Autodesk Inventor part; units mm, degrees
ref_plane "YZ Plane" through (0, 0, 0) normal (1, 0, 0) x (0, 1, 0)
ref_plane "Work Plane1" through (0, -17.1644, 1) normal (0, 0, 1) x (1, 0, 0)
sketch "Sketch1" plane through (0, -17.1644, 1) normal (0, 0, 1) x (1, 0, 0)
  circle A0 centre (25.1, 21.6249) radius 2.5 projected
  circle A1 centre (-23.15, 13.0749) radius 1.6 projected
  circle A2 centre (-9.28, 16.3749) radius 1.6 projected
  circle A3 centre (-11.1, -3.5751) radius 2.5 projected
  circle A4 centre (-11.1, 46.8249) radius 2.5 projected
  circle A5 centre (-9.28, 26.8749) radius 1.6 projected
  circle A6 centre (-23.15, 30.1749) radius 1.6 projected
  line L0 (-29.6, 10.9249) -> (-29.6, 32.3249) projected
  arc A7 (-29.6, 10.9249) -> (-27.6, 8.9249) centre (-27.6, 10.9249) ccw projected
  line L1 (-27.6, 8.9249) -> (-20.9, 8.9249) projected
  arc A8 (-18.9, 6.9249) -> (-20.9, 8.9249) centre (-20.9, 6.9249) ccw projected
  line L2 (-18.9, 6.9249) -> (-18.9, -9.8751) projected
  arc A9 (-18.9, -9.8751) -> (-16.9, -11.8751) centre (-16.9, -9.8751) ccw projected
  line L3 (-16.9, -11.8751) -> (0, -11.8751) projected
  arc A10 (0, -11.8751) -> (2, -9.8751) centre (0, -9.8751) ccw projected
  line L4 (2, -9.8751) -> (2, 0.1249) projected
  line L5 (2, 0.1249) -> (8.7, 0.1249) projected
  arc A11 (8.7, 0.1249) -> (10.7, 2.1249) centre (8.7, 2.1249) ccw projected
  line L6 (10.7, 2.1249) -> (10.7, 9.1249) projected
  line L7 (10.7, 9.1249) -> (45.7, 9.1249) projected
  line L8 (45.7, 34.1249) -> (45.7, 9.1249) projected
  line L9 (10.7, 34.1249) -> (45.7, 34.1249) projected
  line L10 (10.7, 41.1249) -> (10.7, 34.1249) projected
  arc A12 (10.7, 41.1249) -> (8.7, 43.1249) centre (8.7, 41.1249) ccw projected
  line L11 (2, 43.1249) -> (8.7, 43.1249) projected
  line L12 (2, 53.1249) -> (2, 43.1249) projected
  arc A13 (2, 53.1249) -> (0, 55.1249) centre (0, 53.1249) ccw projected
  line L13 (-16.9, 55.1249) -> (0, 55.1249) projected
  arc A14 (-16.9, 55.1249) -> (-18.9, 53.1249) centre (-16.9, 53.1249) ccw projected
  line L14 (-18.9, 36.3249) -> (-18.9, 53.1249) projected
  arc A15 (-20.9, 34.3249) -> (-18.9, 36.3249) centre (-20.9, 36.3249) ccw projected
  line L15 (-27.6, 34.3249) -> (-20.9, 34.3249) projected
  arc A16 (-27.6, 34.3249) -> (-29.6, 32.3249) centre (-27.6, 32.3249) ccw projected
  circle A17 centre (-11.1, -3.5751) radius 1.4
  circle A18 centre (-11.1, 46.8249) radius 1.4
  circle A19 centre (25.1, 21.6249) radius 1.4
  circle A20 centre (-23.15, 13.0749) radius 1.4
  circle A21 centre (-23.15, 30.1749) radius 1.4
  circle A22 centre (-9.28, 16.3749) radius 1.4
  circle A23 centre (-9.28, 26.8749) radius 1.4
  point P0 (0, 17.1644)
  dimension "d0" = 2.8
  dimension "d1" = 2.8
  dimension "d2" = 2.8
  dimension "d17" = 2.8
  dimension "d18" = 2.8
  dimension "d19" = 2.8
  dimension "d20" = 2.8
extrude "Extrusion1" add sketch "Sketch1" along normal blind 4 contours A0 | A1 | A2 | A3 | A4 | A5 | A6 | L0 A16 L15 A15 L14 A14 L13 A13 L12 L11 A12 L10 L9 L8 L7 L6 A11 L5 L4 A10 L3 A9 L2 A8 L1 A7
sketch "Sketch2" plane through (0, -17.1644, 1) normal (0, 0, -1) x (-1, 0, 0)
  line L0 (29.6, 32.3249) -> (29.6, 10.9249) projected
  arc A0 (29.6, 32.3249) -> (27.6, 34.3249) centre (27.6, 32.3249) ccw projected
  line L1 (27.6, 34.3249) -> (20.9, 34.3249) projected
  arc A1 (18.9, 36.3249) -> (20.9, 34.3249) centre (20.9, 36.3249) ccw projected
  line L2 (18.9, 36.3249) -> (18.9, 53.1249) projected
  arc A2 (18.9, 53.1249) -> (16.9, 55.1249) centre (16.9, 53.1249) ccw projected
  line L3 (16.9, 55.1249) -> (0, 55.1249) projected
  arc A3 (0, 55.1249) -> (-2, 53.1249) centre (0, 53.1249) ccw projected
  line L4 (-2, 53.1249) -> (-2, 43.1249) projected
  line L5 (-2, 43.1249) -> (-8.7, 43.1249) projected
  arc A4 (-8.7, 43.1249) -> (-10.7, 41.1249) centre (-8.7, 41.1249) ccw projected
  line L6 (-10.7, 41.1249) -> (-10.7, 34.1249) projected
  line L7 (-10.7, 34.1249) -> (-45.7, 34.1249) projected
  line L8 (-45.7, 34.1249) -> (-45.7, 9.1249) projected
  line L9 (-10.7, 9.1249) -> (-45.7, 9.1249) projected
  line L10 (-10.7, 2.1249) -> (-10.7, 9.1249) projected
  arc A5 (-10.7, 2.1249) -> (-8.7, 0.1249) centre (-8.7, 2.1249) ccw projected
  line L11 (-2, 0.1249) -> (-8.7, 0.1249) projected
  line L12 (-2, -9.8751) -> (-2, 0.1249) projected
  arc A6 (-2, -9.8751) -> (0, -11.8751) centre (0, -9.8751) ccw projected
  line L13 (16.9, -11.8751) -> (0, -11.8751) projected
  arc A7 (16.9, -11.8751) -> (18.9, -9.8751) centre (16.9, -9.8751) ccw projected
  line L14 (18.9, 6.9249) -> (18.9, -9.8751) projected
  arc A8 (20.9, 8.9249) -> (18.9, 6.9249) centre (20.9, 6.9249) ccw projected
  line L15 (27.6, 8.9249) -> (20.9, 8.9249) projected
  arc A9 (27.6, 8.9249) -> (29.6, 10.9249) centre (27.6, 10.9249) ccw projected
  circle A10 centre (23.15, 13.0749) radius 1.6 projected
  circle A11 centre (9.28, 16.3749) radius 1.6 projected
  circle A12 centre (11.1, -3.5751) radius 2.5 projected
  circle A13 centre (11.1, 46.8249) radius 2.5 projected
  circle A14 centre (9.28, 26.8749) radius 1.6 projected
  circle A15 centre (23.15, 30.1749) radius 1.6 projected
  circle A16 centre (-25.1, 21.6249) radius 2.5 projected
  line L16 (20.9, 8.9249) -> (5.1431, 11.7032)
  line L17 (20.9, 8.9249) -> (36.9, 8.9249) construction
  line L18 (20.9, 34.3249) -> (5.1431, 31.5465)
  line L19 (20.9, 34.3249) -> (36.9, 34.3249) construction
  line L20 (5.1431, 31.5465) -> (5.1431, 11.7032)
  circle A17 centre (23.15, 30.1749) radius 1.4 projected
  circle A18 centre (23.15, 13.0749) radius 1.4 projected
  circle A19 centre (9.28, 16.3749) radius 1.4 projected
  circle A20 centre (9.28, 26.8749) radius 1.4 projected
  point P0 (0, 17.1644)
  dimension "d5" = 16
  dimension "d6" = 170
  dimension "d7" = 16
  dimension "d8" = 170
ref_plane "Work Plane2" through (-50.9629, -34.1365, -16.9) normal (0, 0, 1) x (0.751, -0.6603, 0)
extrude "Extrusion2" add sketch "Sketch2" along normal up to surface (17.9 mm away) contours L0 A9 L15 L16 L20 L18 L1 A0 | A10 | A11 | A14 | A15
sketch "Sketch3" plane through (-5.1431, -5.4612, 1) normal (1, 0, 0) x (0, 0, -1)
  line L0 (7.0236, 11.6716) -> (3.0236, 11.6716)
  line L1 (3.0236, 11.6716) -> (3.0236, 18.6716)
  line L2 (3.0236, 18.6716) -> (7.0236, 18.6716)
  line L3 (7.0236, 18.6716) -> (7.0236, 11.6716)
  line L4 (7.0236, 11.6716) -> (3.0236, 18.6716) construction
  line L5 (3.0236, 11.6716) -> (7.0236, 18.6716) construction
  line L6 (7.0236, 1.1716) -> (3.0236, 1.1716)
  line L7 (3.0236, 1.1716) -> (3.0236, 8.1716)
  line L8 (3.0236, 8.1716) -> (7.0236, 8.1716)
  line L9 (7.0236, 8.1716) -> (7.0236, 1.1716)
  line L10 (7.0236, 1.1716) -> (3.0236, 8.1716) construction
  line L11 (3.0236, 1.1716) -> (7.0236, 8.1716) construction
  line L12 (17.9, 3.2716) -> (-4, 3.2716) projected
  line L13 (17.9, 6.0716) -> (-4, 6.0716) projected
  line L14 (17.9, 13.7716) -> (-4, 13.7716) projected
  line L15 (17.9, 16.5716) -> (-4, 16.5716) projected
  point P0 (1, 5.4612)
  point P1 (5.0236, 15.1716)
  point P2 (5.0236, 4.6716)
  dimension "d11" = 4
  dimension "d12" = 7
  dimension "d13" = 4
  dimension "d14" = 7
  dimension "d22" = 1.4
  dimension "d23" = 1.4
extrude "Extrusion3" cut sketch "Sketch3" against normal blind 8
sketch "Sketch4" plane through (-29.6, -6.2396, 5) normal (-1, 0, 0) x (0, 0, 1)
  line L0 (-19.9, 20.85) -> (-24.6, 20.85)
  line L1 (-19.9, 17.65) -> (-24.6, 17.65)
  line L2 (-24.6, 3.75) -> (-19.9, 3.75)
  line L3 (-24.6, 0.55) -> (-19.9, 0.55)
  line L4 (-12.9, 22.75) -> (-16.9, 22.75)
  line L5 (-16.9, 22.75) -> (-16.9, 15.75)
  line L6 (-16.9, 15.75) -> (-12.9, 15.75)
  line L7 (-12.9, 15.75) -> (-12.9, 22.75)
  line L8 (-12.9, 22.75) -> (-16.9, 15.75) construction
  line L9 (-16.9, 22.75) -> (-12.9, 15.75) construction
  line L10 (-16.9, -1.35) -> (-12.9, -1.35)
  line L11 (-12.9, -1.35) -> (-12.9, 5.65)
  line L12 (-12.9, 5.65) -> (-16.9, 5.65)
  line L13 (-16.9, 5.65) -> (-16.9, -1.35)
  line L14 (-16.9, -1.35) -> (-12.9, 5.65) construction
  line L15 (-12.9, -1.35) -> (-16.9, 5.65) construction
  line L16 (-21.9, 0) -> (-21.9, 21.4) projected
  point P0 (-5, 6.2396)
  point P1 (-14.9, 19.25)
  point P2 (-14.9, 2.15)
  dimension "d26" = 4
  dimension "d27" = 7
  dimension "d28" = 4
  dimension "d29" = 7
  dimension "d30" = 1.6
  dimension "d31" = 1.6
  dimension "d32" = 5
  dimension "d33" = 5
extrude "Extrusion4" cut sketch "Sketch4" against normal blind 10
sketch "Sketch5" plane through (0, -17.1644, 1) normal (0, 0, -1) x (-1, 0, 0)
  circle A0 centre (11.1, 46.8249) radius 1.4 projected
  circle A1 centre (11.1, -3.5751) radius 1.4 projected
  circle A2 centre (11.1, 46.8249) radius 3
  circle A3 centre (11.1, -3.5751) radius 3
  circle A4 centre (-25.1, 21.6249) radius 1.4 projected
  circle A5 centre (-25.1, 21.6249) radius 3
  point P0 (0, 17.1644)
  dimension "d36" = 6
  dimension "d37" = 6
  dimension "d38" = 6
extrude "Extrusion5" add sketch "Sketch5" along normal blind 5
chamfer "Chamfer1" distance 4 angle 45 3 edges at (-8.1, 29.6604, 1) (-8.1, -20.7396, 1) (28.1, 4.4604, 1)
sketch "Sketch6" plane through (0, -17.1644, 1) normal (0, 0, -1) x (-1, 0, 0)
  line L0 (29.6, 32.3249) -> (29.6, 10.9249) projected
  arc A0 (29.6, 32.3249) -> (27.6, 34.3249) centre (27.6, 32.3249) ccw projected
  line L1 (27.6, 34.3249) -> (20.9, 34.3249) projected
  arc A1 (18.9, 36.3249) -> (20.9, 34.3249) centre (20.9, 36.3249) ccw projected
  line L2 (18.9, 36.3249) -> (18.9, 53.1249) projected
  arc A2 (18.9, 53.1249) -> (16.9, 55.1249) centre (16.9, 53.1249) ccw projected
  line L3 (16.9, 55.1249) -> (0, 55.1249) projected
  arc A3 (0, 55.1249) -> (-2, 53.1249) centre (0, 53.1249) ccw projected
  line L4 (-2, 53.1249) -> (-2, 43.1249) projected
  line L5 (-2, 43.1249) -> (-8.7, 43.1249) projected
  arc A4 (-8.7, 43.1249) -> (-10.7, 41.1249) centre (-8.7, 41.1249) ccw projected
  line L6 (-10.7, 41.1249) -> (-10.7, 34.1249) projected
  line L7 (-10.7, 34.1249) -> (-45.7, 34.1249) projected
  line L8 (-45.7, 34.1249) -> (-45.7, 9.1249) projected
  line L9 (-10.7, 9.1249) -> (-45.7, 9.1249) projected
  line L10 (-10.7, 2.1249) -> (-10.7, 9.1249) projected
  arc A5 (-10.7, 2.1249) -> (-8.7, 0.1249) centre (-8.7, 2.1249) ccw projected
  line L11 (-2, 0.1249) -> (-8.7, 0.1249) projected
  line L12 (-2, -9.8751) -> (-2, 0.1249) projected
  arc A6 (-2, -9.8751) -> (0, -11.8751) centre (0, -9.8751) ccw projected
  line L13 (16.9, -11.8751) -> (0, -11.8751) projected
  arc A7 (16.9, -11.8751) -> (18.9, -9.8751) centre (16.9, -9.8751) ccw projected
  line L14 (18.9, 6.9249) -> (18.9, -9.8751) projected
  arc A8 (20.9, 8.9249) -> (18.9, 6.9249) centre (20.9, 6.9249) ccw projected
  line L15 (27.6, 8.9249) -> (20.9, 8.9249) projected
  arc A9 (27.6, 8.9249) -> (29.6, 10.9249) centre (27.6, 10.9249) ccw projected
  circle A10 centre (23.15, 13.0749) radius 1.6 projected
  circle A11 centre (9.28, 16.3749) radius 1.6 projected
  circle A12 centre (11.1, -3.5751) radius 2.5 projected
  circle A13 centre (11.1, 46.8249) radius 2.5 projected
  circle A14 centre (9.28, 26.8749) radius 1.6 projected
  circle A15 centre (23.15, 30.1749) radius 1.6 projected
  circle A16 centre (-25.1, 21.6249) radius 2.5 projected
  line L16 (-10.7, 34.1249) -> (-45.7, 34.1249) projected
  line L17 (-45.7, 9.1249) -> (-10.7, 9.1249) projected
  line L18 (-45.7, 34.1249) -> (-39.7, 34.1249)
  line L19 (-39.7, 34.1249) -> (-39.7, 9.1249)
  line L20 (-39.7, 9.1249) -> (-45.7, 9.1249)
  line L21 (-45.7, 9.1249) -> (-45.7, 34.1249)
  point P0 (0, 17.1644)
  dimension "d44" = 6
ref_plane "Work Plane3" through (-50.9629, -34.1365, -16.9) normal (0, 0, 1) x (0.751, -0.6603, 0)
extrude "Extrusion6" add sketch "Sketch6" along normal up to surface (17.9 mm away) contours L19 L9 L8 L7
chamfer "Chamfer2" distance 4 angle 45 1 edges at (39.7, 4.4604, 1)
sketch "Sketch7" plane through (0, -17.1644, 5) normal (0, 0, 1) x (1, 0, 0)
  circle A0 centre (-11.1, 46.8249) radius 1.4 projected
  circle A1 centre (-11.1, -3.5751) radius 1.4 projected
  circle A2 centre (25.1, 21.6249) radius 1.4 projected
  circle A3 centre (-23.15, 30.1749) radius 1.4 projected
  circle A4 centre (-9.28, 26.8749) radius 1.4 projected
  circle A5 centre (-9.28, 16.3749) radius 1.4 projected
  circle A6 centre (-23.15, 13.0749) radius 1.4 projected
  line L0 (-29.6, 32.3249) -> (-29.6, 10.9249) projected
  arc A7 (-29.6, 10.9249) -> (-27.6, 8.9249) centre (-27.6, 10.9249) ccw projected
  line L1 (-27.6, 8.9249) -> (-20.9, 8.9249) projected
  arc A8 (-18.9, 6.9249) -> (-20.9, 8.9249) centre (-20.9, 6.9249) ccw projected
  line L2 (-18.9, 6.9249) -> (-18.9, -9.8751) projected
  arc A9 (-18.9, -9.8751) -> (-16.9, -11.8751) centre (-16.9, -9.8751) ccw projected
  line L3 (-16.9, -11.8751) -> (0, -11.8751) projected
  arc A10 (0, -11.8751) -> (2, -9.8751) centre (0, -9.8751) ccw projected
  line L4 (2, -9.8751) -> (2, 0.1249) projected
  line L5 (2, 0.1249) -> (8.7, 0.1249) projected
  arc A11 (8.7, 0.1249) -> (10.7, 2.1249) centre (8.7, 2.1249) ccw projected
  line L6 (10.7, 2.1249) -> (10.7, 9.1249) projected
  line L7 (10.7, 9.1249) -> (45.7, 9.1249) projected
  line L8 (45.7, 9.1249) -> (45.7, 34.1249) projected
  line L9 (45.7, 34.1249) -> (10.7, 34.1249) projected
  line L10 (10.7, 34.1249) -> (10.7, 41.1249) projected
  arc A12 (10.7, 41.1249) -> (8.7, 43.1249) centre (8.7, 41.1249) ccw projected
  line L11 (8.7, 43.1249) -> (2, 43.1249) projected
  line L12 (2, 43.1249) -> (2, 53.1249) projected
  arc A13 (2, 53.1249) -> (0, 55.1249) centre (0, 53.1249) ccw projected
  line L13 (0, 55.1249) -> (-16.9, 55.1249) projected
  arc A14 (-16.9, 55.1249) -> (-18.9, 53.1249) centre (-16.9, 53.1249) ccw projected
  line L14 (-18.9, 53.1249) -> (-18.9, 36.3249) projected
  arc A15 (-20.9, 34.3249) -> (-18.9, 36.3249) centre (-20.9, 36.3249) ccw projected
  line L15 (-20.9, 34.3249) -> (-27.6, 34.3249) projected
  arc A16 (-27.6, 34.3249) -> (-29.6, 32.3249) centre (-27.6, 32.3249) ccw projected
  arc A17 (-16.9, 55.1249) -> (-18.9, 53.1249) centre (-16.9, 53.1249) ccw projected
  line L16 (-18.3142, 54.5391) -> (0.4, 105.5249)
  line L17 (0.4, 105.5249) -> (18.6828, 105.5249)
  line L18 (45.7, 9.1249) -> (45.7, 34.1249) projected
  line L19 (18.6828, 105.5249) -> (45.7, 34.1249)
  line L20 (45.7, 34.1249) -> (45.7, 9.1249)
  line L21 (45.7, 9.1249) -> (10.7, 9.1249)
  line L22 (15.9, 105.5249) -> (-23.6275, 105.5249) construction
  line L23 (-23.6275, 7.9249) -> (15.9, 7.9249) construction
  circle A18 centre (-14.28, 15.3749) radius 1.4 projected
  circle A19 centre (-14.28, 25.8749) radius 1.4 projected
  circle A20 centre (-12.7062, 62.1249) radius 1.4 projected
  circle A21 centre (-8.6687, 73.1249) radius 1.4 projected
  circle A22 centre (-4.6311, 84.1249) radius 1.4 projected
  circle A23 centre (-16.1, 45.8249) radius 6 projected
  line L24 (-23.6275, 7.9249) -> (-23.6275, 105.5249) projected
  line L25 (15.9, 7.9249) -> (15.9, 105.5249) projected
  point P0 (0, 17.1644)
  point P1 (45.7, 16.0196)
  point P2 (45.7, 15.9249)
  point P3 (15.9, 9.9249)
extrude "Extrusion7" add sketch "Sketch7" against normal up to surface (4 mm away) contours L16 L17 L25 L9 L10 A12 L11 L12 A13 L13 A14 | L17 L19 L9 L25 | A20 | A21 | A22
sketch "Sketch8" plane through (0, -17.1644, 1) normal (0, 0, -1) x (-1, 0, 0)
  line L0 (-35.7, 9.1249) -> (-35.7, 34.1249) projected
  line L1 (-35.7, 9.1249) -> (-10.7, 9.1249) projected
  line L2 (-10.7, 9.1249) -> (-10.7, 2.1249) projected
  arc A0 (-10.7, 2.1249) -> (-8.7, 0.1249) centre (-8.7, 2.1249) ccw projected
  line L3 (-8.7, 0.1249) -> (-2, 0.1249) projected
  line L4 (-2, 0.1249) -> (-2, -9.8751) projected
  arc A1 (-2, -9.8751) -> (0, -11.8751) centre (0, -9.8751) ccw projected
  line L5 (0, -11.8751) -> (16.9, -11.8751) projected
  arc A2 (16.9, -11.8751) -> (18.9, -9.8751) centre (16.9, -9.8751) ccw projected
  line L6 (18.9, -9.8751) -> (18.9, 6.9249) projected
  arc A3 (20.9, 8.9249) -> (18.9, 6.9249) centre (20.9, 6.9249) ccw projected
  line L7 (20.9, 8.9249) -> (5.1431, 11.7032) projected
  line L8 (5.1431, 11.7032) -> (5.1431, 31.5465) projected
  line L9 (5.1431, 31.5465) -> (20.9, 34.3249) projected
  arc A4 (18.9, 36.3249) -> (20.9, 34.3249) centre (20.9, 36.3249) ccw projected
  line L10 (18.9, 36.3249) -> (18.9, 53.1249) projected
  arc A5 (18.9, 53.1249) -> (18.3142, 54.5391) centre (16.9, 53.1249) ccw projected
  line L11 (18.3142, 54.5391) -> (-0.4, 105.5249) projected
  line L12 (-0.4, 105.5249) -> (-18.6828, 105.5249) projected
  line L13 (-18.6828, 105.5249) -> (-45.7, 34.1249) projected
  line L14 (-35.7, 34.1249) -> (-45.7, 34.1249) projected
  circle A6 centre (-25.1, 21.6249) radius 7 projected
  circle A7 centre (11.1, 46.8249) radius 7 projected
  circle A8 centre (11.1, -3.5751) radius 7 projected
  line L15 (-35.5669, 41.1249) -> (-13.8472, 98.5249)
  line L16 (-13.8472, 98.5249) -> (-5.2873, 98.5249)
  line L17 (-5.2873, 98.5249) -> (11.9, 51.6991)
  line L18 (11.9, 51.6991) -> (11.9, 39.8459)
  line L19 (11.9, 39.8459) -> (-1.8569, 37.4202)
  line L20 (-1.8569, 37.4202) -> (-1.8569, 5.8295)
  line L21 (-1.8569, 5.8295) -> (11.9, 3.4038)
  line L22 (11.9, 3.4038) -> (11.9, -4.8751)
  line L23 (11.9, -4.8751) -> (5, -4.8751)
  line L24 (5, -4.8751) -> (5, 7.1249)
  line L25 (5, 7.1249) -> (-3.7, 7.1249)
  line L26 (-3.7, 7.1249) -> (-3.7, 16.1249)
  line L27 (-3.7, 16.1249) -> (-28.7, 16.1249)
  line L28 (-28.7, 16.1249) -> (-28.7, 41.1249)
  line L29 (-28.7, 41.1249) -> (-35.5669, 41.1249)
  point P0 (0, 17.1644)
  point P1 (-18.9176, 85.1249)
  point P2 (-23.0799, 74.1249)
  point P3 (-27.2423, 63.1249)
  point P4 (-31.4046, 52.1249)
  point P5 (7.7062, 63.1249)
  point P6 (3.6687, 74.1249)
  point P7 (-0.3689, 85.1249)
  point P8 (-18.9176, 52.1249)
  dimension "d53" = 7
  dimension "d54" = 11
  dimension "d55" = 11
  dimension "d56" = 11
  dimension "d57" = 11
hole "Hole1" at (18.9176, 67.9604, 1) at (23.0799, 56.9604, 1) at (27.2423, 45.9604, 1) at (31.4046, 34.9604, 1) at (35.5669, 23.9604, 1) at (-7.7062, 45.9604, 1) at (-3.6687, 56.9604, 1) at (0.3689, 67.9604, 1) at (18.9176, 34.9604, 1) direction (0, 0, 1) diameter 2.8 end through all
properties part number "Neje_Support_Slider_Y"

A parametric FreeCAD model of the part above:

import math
import FreeCAD as App
import Part
import Sketcher
from FreeCAD import Vector
Q = App.Units.Quantity


def edges_at(feature, points):
    """Names of the edges that pass closest to the given points."""
    edges = feature.Shape.Edges
    near = lambda p: min(range(len(edges)), key=lambda i: edges[i].distToShape(Part.Vertex(*p))[0])
    return sorted({f"Edge{near(p) + 1}" for p in points})

doc = App.newDocument("Part")
body = doc.addObject("PartDesign::Body", "Body")

sketch1 = body.newObject("Sketcher::SketchObject", "Sketch")
sketch1.AttachmentSupport = (doc.getObject("XY_Plane"), [""])
sketch1.MapMode = "FlatFace"
sketch1.AttachmentOffset = App.Placement(Vector(0, 0, 1), App.Rotation())
sketch1.addGeometry(Part.LineSegment(Vector(-29.6, 15.1605, 0), Vector(-29.6, -6.2395, 0)), False)
sketch1.addGeometry(Part.ArcOfCircle(Part.Circle(Vector(-27.6, -6.2395, 0), Vector(0, 0, 1), 2), math.radians(180), math.radians(270)), False)
sketch1.addGeometry(Part.LineSegment(Vector(-27.6, -8.2395, 0), Vector(-20.9, -8.2395, 0)), False)
sketch1.addGeometry(Part.ArcOfCircle(Part.Circle(Vector(-20.9, -10.2395, 0), Vector(0, 0, 1), 2), math.radians(0), math.radians(90)), False)
sketch1.addGeometry(Part.LineSegment(Vector(-18.9, -10.2395, 0), Vector(-18.9, -27.0395, 0)), False)
sketch1.addGeometry(Part.ArcOfCircle(Part.Circle(Vector(-16.9, -27.0395, 0), Vector(0, 0, 1), 2), math.radians(180), math.radians(270)), False)
sketch1.addGeometry(Part.LineSegment(Vector(-16.9, -29.0395, 0), Vector(0, -29.0395, 0)), False)
sketch1.addGeometry(Part.ArcOfCircle(Part.Circle(Vector(0, -27.0395, 0), Vector(0, 0, 1), 2), math.radians(-90), math.radians(0)), False)
sketch1.addGeometry(Part.LineSegment(Vector(2, -27.0395, 0), Vector(2, -17.0395, 0)), False)
sketch1.addGeometry(Part.LineSegment(Vector(2, -17.0395, 0), Vector(8.7, -17.0395, 0)), False)
sketch1.addGeometry(Part.ArcOfCircle(Part.Circle(Vector(8.7, -15.0395, 0), Vector(0, 0, 1), 2), math.radians(-90), math.radians(0)), False)
sketch1.addGeometry(Part.LineSegment(Vector(10.7, -15.0395, 0), Vector(10.7, -8.0395, 0)), False)
sketch1.addGeometry(Part.LineSegment(Vector(10.7, -8.0395, 0), Vector(45.7, -8.0395, 0)), False)
sketch1.addGeometry(Part.LineSegment(Vector(45.7, -8.0395, 0), Vector(45.7, 16.9605, 0)), False)
sketch1.addGeometry(Part.LineSegment(Vector(45.7, 16.9605, 0), Vector(10.7, 16.9605, 0)), False)
sketch1.addGeometry(Part.LineSegment(Vector(10.7, 16.9605, 0), Vector(10.7, 23.9605, 0)), False)
sketch1.addGeometry(Part.ArcOfCircle(Part.Circle(Vector(8.7, 23.9605, 0), Vector(0, 0, 1), 2), math.radians(0), math.radians(90)), False)
sketch1.addGeometry(Part.LineSegment(Vector(8.7, 25.9605, 0), Vector(2, 25.9605, 0)), False)
sketch1.addGeometry(Part.LineSegment(Vector(2, 25.9605, 0), Vector(2, 35.9605, 0)), False)
sketch1.addGeometry(Part.ArcOfCircle(Part.Circle(Vector(0, 35.9605, 0), Vector(0, 0, 1), 2), math.radians(0), math.radians(90)), False)
sketch1.addGeometry(Part.LineSegment(Vector(0, 37.9605, 0), Vector(-16.9, 37.9605, 0)), False)
sketch1.addGeometry(Part.ArcOfCircle(Part.Circle(Vector(-16.9, 35.9605, 0), Vector(0, 0, 1), 2), math.radians(90), math.radians(180)), False)
sketch1.addGeometry(Part.LineSegment(Vector(-18.9, 35.9605, 0), Vector(-18.9, 19.1605, 0)), False)
sketch1.addGeometry(Part.ArcOfCircle(Part.Circle(Vector(-20.9, 19.1605, 0), Vector(0, 0, 1), 2), math.radians(-90), math.radians(0)), False)
sketch1.addGeometry(Part.LineSegment(Vector(-20.9, 17.1605, 0), Vector(-27.6, 17.1605, 0)), False)
sketch1.addGeometry(Part.ArcOfCircle(Part.Circle(Vector(-27.6, 15.1605, 0), Vector(0, 0, 1), 2), math.radians(90), math.radians(180)), False)
sketch1.addGeometry(Part.Circle(Vector(25.1, 4.4605, 0), Vector(0, 0, 1), 1.4), False)
sketch1.addGeometry(Part.Circle(Vector(-11.1, -20.7395, 0), Vector(0, 0, 1), 1.4), False)
sketch1.addGeometry(Part.Circle(Vector(-23.15, -4.0895, 0), Vector(0, 0, 1), 1.4), False)
sketch1.addGeometry(Part.Circle(Vector(-9.28, -0.7895, 0), Vector(0, 0, 1), 1.4), False)
sketch1.addGeometry(Part.Circle(Vector(-23.15, 13.0105, 0), Vector(0, 0, 1), 1.4), False)
sketch1.addGeometry(Part.Circle(Vector(-9.28, 9.7105, 0), Vector(0, 0, 1), 1.4), False)
sketch1.addGeometry(Part.Circle(Vector(-11.1, 29.6605, 0), Vector(0, 0, 1), 1.4), False)
sketch1.addConstraint(Sketcher.Constraint("Tangent", 0, 2, 1, 1))
sketch1.addConstraint(Sketcher.Constraint("Tangent", 1, 2, 2, 1))
sketch1.addConstraint(Sketcher.Constraint("Tangent", 2, 2, 3, 2))
sketch1.addConstraint(Sketcher.Constraint("Tangent", 3, 1, 4, 1))
sketch1.addConstraint(Sketcher.Constraint("Tangent", 4, 2, 5, 1))
sketch1.addConstraint(Sketcher.Constraint("Tangent", 5, 2, 6, 1))
sketch1.addConstraint(Sketcher.Constraint("Tangent", 6, 2, 7, 1))
sketch1.addConstraint(Sketcher.Constraint("Tangent", 7, 2, 8, 1))
sketch1.addConstraint(Sketcher.Constraint("Coincident", 8, 2, 9, 1))
sketch1.addConstraint(Sketcher.Constraint("Tangent", 9, 2, 10, 1))
sketch1.addConstraint(Sketcher.Constraint("Tangent", 10, 2, 11, 1))
sketch1.addConstraint(Sketcher.Constraint("Coincident", 11, 2, 12, 1))
sketch1.addConstraint(Sketcher.Constraint("Coincident", 12, 2, 13, 1))
sketch1.addConstraint(Sketcher.Constraint("Coincident", 13, 2, 14, 1))
sketch1.addConstraint(Sketcher.Constraint("Coincident", 14, 2, 15, 1))
sketch1.addConstraint(Sketcher.Constraint("Tangent", 15, 2, 16, 1))
sketch1.addConstraint(Sketcher.Constraint("Tangent", 16, 2, 17, 1))
sketch1.addConstraint(Sketcher.Constraint("Coincident", 17, 2, 18, 1))
sketch1.addConstraint(Sketcher.Constraint("Tangent", 18, 2, 19, 1))
sketch1.addConstraint(Sketcher.Constraint("Tangent", 19, 2, 20, 1))
sketch1.addConstraint(Sketcher.Constraint("Tangent", 20, 2, 21, 1))
sketch1.addConstraint(Sketcher.Constraint("Tangent", 21, 2, 22, 1))
sketch1.addConstraint(Sketcher.Constraint("Tangent", 22, 2, 23, 2))
sketch1.addConstraint(Sketcher.Constraint("Tangent", 23, 1, 24, 1))
sketch1.addConstraint(Sketcher.Constraint("Tangent", 24, 2, 25, 1))
sketch1.addConstraint(Sketcher.Constraint("Tangent", 25, 2, 0, 1))
sketch1.addConstraint(Sketcher.Constraint("Vertical", 0))
sketch1.addConstraint(Sketcher.Constraint("Horizontal", 2))
sketch1.addConstraint(Sketcher.Constraint("Vertical", 4))
sketch1.addConstraint(Sketcher.Constraint("Horizontal", 6))
sketch1.addConstraint(Sketcher.Constraint("Vertical", 8))
sketch1.addConstraint(Sketcher.Constraint("Horizontal", 9))
sketch1.addConstraint(Sketcher.Constraint("Vertical", 11))
sketch1.addConstraint(Sketcher.Constraint("Horizontal", 12))
sketch1.addConstraint(Sketcher.Constraint("Vertical", 13))
sketch1.addConstraint(Sketcher.Constraint("Horizontal", 14))
sketch1.addConstraint(Sketcher.Constraint("Vertical", 15))
sketch1.addConstraint(Sketcher.Constraint("Horizontal", 17))
sketch1.addConstraint(Sketcher.Constraint("Vertical", 18))
sketch1.addConstraint(Sketcher.Constraint("Horizontal", 20))
sketch1.addConstraint(Sketcher.Constraint("Vertical", 22))
sketch1.addConstraint(Sketcher.Constraint("Horizontal", 24))
sketch1.addConstraint(Sketcher.Constraint("Equal", 1, 3))
sketch1.addConstraint(Sketcher.Constraint("Equal", 3, 5))
sketch1.addConstraint(Sketcher.Constraint("Equal", 5, 7))
sketch1.addConstraint(Sketcher.Constraint("Equal", 7, 10))
sketch1.addConstraint(Sketcher.Constraint("Equal", 10, 16))
sketch1.addConstraint(Sketcher.Constraint("Equal", 16, 19))
sketch1.addConstraint(Sketcher.Constraint("Equal", 19, 21))
sketch1.addConstraint(Sketcher.Constraint("Equal", 21, 23))
sketch1.addConstraint(Sketcher.Constraint("Equal", 23, 25))
sketch1.addConstraint(Sketcher.Constraint("Equal", 26, 27))
sketch1.addConstraint(Sketcher.Constraint("Equal", 27, 28))
sketch1.addConstraint(Sketcher.Constraint("Equal", 28, 29))
sketch1.addConstraint(Sketcher.Constraint("Equal", 29, 30))
sketch1.addConstraint(Sketcher.Constraint("Equal", 30, 31))
sketch1.addConstraint(Sketcher.Constraint("Equal", 31, 32))
sketch1.addConstraint(Sketcher.Constraint("PointOnObject", 7, 3, -2))
sketch1.addConstraint(Sketcher.Constraint("PointOnObject", 19, 3, -2))
sketch1.addConstraint(Sketcher.Constraint("Vertical", 10, 3, 16, 3))
sketch1.addConstraint(Sketcher.Constraint("Vertical", 5, 3, 21, 3))
sketch1.addConstraint(Sketcher.Constraint("Vertical", 28, 3, 30, 3))
sketch1.addConstraint(Sketcher.Constraint("Vertical", 29, 3, 31, 3))
sketch1.addConstraint(Sketcher.Constraint("Vertical", 27, 3, 32, 3))
sketch1.addConstraint(Sketcher.Constraint("Equal", 2, 9))
sketch1.addConstraint(Sketcher.Constraint("Equal", 11, 15))
sketch1.addConstraint(Sketcher.Constraint("Equal", 8, 18))
sketch1.addConstraint(Sketcher.Constraint("Equal", 4, 22))
sketch1.addConstraint(Sketcher.Constraint("Diameter", 26, Q("2.8 mm")))
sketch1.addConstraint(Sketcher.Constraint("Radius", 1, Q("2 mm")))
sketch1.addConstraint(Sketcher.Constraint("DistanceX", 12, 1, 12, 2, Q("35 mm")))
sketch1.addConstraint(Sketcher.Constraint("DistanceY", 8, 1, 8, 2, Q("10 mm")))
sketch1.addConstraint(Sketcher.Constraint("DistanceY", 11, 1, 11, 2, Q("7 mm")))
sketch1.addConstraint(Sketcher.Constraint("DistanceY", 13, 1, 13, 2, Q("25 mm")))
sketch1.addConstraint(Sketcher.Constraint("DistanceX", 2, 1, 2, 2, Q("6.7 mm")))
sketch1.addConstraint(Sketcher.Constraint("DistanceX", 6, 1, 6, 2, Q("16.9 mm")))
sketch1.addConstraint(Sketcher.Constraint("DistanceY", 0, 2, 0, 1, Q("21.4 mm")))
sketch1.addConstraint(Sketcher.Constraint("DistanceX", 3, 3, 26, 3, Q("46 mm")))
sketch1.addConstraint(Sketcher.Constraint("DistanceX", 27, 3, -1, 1, Q("11.1 mm")))
sketch1.addConstraint(Sketcher.Constraint("DistanceY", 10, 3, 26, 3, Q("19.5 mm")))
sketch1.addConstraint(Sketcher.Constraint("DistanceY", 5, 3, 27, 3, Q("6.3 mm")))
sketch1.addConstraint(Sketcher.Constraint("DistanceY", 28, 3, 29, 3, Q("3.3 mm")))
sketch1.addConstraint(Sketcher.Constraint("DistanceY", 28, 3, 30, 3, Q("17.1 mm")))
sketch1.addConstraint(Sketcher.Constraint("DistanceY", 29, 3, 31, 3, Q("10.5 mm")))
sketch1.addConstraint(Sketcher.Constraint("DistanceY", 32, 3, 21, 3, Q("6.3 mm")))
sketch1.addConstraint(Sketcher.Constraint("DistanceX", 28, 3, -1, 1, Q("23.15 mm")))
sketch1.addConstraint(Sketcher.Constraint("DistanceX", 29, 3, -1, 1, Q("9.28 mm")))
sketch1.addConstraint(Sketcher.Constraint("DistanceY", 1, 3, 28, 3, Q("2.15 mm")))
sketch1.addConstraint(Sketcher.Constraint("DistanceY", 1, 3, -1, 1, Q("6.2395 mm")))
pad1 = body.newObject("PartDesign::Pad", "Pad")
pad1.Profile = sketch1
pad1.Length = 4

sketch2 = body.newObject("Sketcher::SketchObject", "Sketch001")
sketch2.AttachmentSupport = (doc.getObject("XY_Plane"), [""])
sketch2.MapMode = "FlatFace"
sketch2.AttachmentOffset = App.Placement(Vector(0, 0, 1), App.Rotation())
sketch2.addGeometry(Part.LineSegment(Vector(-29.6, -6.2395, 0), Vector(-29.6, 15.1605, 0)), False)
sketch2.addGeometry(Part.ArcOfCircle(Part.Circle(Vector(-27.6, 15.1605, 0), Vector(0, 0, 1), 2), math.radians(90), math.radians(180)), False)
sketch2.addGeometry(Part.LineSegment(Vector(-27.6, 17.1605, 0), Vector(-20.9, 17.1605, 0)), False)
sketch2.addGeometry(Part.LineSegment(Vector(-20.9, 17.1605, 0), Vector(-5.1431, 14.3821, 0)), False)
sketch2.addGeometry(Part.LineSegment(Vector(-5.1431, 14.3821, 0), Vector(-5.1431, -5.4612, 0)), False)
sketch2.addGeometry(Part.LineSegment(Vector(-5.1431, -5.4612, 0), Vector(-20.9, -8.2395, 0)), False)
sketch2.addGeometry(Part.LineSegment(Vector(-20.9, -8.2395, 0), Vector(-27.6, -8.2395, 0)), False)
sketch2.addGeometry(Part.ArcOfCircle(Part.Circle(Vector(-27.6, -6.2395, 0), Vector(0, 0, 1), 2), math.radians(180), math.radians(270)), False)
sketch2.addGeometry(Part.Circle(Vector(-9.28, -0.7895, 0), Vector(0, 0, 1), 1.4), False)
sketch2.addGeometry(Part.Circle(Vector(-23.15, -4.0895, 0), Vector(0, 0, 1), 1.4), False)
sketch2.addGeometry(Part.Circle(Vector(-9.28, 9.7105, 0), Vector(0, 0, 1), 1.4), False)
sketch2.addGeometry(Part.Circle(Vector(-23.15, 13.0105, 0), Vector(0, 0, 1), 1.4), False)
sketch2.addConstraint(Sketcher.Constraint("Tangent", 0, 2, 1, 2))
sketch2.addConstraint(Sketcher.Constraint("Tangent", 1, 1, 2, 1))
sketch2.addConstraint(Sketcher.Constraint("Coincident", 2, 2, 3, 1))
sketch2.addConstraint(Sketcher.Constraint("Coincident", 3, 2, 4, 1))
sketch2.addConstraint(Sketcher.Constraint("Coincident", 4, 2, 5, 1))
sketch2.addConstraint(Sketcher.Constraint("Coincident", 5, 2, 6, 1))
sketch2.addConstraint(Sketcher.Constraint("Tangent", 6, 2, 7, 2))
sketch2.addConstraint(Sketcher.Constraint("Tangent", 7, 1, 0, 1))
sketch2.addConstraint(Sketcher.Constraint("Vertical", 0))
sketch2.addConstraint(Sketcher.Constraint("Horizontal", 2))
sketch2.addConstraint(Sketcher.Constraint("Vertical", 4))
sketch2.addConstraint(Sketcher.Constraint("Horizontal", 6))
sketch2.addConstraint(Sketcher.Constraint("Equal", 1, 7))
sketch2.addConstraint(Sketcher.Constraint("Equal", 8, 9))
sketch2.addConstraint(Sketcher.Constraint("Equal", 9, 10))
sketch2.addConstraint(Sketcher.Constraint("Equal", 10, 11))
sketch2.addConstraint(Sketcher.Constraint("Vertical", 8, 3, 10, 3))
sketch2.addConstraint(Sketcher.Constraint("Vertical", 9, 3, 11, 3))
sketch2.addConstraint(Sketcher.Constraint("Vertical", 2, 2, 5, 2))
sketch2.addConstraint(Sketcher.Constraint("Equal", 3, 5))
sketch2.addConstraint(Sketcher.Constraint("Angle", 5, Q("-170.0002 deg")))
sketch2.addConstraint(Sketcher.Constraint("Distance", 3, Q("16 mm")))
sketch2.addConstraint(Sketcher.Constraint("Radius", 1, Q("2 mm")))
sketch2.addConstraint(Sketcher.Constraint("Diameter", 8, Q("2.8 mm")))
sketch2.addConstraint(Sketcher.Constraint("DistanceX", 2, 1, 2, 2, Q("6.7 mm")))
sketch2.addConstraint(Sketcher.Constraint("DistanceY", 0, 1, 0, 2, Q("21.4 mm")))
sketch2.addConstraint(Sketcher.Constraint("DistanceX", 1, 3, -1, 1, Q("27.6 mm")))
sketch2.addConstraint(Sketcher.Constraint("DistanceY", 9, 3, 8, 3, Q("3.3 mm")))
sketch2.addConstraint(Sketcher.Constraint("DistanceY", 8, 3, 10, 3, Q("10.5 mm")))
sketch2.addConstraint(Sketcher.Constraint("DistanceY", 10, 3, 11, 3, Q("3.3 mm")))
sketch2.addConstraint(Sketcher.Constraint("DistanceX", 8, 3, -1, 1, Q("9.28 mm")))
sketch2.addConstraint(Sketcher.Constraint("DistanceX", 9, 3, -1, 1, Q("23.15 mm")))
sketch2.addConstraint(Sketcher.Constraint("DistanceY", 7, 3, 8, 3, Q("5.45 mm")))
sketch2.addConstraint(Sketcher.Constraint("DistanceY", -1, 1, 3, 2, Q("14.382 mm")))
pad2 = body.newObject("PartDesign::Pad", "Pad001")
pad2.Profile = sketch2
pad2.Length = 17.9
pad2.Reversed = True

sketch3 = body.newObject("Sketcher::SketchObject", "Sketch002")
sketch3.AttachmentSupport = (doc.getObject("YZ_Plane"), [""])
sketch3.MapMode = "FlatFace"
sketch3.AttachmentOffset = App.Placement(Vector(0, 0, -5.1431), App.Rotation())
sketch3.addGeometry(Part.LineSegment(Vector(6.2104, -2.0236, 0), Vector(6.2104, -6.0236, 0)), False)
sketch3.addGeometry(Part.LineSegment(Vector(6.2104, -6.0236, 0), Vector(13.2104, -6.0236, 0)), False)
sketch3.addGeometry(Part.LineSegment(Vector(13.2104, -6.0236, 0), Vector(13.2104, -2.0236, 0)), False)
sketch3.addGeometry(Part.LineSegment(Vector(13.2104, -2.0236, 0), Vector(6.2104, -2.0236, 0)), False)
sketch3.addGeometry(Part.LineSegment(Vector(-4.2896, -2.0236, 0), Vector(-4.2896, -6.0236, 0)), False)
sketch3.addGeometry(Part.LineSegment(Vector(-4.2896, -6.0236, 0), Vector(2.7104, -6.0236, 0)), False)
sketch3.addGeometry(Part.LineSegment(Vector(2.7104, -6.0236, 0), Vector(2.7104, -2.0236, 0)), False)
sketch3.addGeometry(Part.LineSegment(Vector(2.7104, -2.0236, 0), Vector(-4.2896, -2.0236, 0)), False)
sketch3.addConstraint(Sketcher.Constraint("Coincident", 0, 2, 1, 1))
sketch3.addConstraint(Sketcher.Constraint("Coincident", 1, 2, 2, 1))
sketch3.addConstraint(Sketcher.Constraint("Coincident", 2, 2, 3, 1))
sketch3.addConstraint(Sketcher.Constraint("Coincident", 3, 2, 0, 1))
sketch3.addConstraint(Sketcher.Constraint("Coincident", 4, 2, 5, 1))
sketch3.addConstraint(Sketcher.Constraint("Coincident", 5, 2, 6, 1))
sketch3.addConstraint(Sketcher.Constraint("Coincident", 6, 2, 7, 1))
sketch3.addConstraint(Sketcher.Constraint("Coincident", 7, 2, 4, 1))
sketch3.addConstraint(Sketcher.Constraint("Vertical", 0))
sketch3.addConstraint(Sketcher.Constraint("Horizontal", 1))
sketch3.addConstraint(Sketcher.Constraint("Vertical", 2))
sketch3.addConstraint(Sketcher.Constraint("Horizontal", 3))
sketch3.addConstraint(Sketcher.Constraint("Vertical", 4))
sketch3.addConstraint(Sketcher.Constraint("Horizontal", 5))
sketch3.addConstraint(Sketcher.Constraint("Vertical", 6))
sketch3.addConstraint(Sketcher.Constraint("Horizontal", 7))
sketch3.addConstraint(Sketcher.Constraint("Horizontal", 1, 2, 4, 2))
sketch3.addConstraint(Sketcher.Constraint("Horizontal", 3, 2, 6, 2))
sketch3.addConstraint(Sketcher.Constraint("Equal", 3, 5))
sketch3.addConstraint(Sketcher.Constraint("DistanceX", 1, 1, 1, 2, Q("7 mm")))
sketch3.addConstraint(Sketcher.Constraint("DistanceY", 0, 2, 0, 1, Q("4 mm")))
sketch3.addConstraint(Sketcher.Constraint("DistanceX", 4, 2, 0, 2, Q("10.5 mm")))
sketch3.addConstraint(Sketcher.Constraint("DistanceX", -1, 1, 0, 2, Q("6.2104 mm")))
sketch3.addConstraint(Sketcher.Constraint("DistanceY", 0, 2, -1, 1, Q("6.0236 mm")))
pocket1 = body.newObject("PartDesign::Pocket", "Pocket")
pocket1.Profile = sketch3
pocket1.Length = 8

sketch4 = body.newObject("Sketcher::SketchObject", "Sketch003")
sketch4.AttachmentSupport = (doc.getObject("YZ_Plane"), [""])
sketch4.MapMode = "FlatFace"
sketch4.AttachmentOffset = App.Placement(Vector(0, 0, -29.6), App.Rotation())
sketch4.addGeometry(Part.LineSegment(Vector(9.5104, -7.9, 0), Vector(16.5104, -7.9, 0)), False)
sketch4.addGeometry(Part.LineSegment(Vector(16.5104, -7.9, 0), Vector(16.5104, -11.9, 0)), False)
sketch4.addGeometry(Part.LineSegment(Vector(16.5104, -11.9, 0), Vector(9.5104, -11.9, 0)), False)
sketch4.addGeometry(Part.LineSegment(Vector(9.5104, -11.9, 0), Vector(9.5104, -7.9, 0)), False)
sketch4.addGeometry(Part.LineSegment(Vector(-0.5896, -11.9, 0), Vector(-7.5896, -11.9, 0)), False)
sketch4.addGeometry(Part.LineSegment(Vector(-7.5896, -11.9, 0), Vector(-7.5896, -7.9, 0)), False)
sketch4.addGeometry(Part.LineSegment(Vector(-7.5896, -7.9, 0), Vector(-0.5896, -7.9, 0)), False)
sketch4.addGeometry(Part.LineSegment(Vector(-0.5896, -7.9, 0), Vector(-0.5896, -11.9, 0)), False)
sketch4.addConstraint(Sketcher.Constraint("Coincident", 0, 2, 1, 1))
sketch4.addConstraint(Sketcher.Constraint("Coincident", 1, 2, 2, 1))
sketch4.addConstraint(Sketcher.Constraint("Coincident", 2, 2, 3, 1))
sketch4.addConstraint(Sketcher.Constraint("Coincident", 3, 2, 0, 1))
sketch4.addConstraint(Sketcher.Constraint("Coincident", 4, 2, 5, 1))
sketch4.addConstraint(Sketcher.Constraint("Coincident", 5, 2, 6, 1))
sketch4.addConstraint(Sketcher.Constraint("Coincident", 6, 2, 7, 1))
sketch4.addConstraint(Sketcher.Constraint("Coincident", 7, 2, 4, 1))
sketch4.addConstraint(Sketcher.Constraint("Horizontal", 0))
sketch4.addConstraint(Sketcher.Constraint("Vertical", 1))
sketch4.addConstraint(Sketcher.Constraint("Horizontal", 2))
sketch4.addConstraint(Sketcher.Constraint("Vertical", 3))
sketch4.addConstraint(Sketcher.Constraint("Horizontal", 4))
sketch4.addConstraint(Sketcher.Constraint("Vertical", 5))
sketch4.addConstraint(Sketcher.Constraint("Horizontal", 6))
sketch4.addConstraint(Sketcher.Constraint("Vertical", 7))
sketch4.addConstraint(Sketcher.Constraint("Horizontal", 2, 2, 4, 2))
sketch4.addConstraint(Sketcher.Constraint("Horizontal", 3, 2, 5, 2))
sketch4.addConstraint(Sketcher.Constraint("Equal", 2, 4))
sketch4.addConstraint(Sketcher.Constraint("DistanceX", 0, 1, 0, 2, Q("7 mm")))
sketch4.addConstraint(Sketcher.Constraint("DistanceY", 1, 2, 1, 1, Q("4 mm")))
sketch4.addConstraint(Sketcher.Constraint("DistanceY", 0, 2, -1, 1, Q("7.9 mm")))
sketch4.addConstraint(Sketcher.Constraint("DistanceX", 4, 2, 2, 2, Q("17.1 mm")))
sketch4.addConstraint(Sketcher.Constraint("DistanceX", -1, 1, 0, 2, Q("16.5104 mm")))
pocket2 = body.newObject("PartDesign::Pocket", "Pocket001")
pocket2.Profile = sketch4
pocket2.Length = 10
pocket2.Reversed = True

sketch5 = body.newObject("Sketcher::SketchObject", "Sketch004")
sketch5.AttachmentSupport = (doc.getObject("XY_Plane"), [""])
sketch5.MapMode = "FlatFace"
sketch5.AttachmentOffset = App.Placement(Vector(0, 0, 1), App.Rotation())
sketch5.addGeometry(Part.Circle(Vector(-11.1, 29.6605, 0), Vector(0, 0, 1), 3), False)
sketch5.addGeometry(Part.Circle(Vector(-11.1, 29.6605, 0), Vector(0, 0, 1), 1.4), False)
sketch5.addGeometry(Part.Circle(Vector(-11.1, -20.7395, 0), Vector(0, 0, 1), 3), False)
sketch5.addGeometry(Part.Circle(Vector(-11.1, -20.7395, 0), Vector(0, 0, 1), 1.4), False)
sketch5.addGeometry(Part.Circle(Vector(25.1, 4.4605, 0), Vector(0, 0, 1), 3), False)
sketch5.addGeometry(Part.Circle(Vector(25.1, 4.4605, 0), Vector(0, 0, 1), 1.4), False)
sketch5.addConstraint(Sketcher.Constraint("Coincident", 1, 3, 0, 3))
sketch5.addConstraint(Sketcher.Constraint("Coincident", 3, 3, 2, 3))
sketch5.addConstraint(Sketcher.Constraint("Coincident", 5, 3, 4, 3))
sketch5.addConstraint(Sketcher.Constraint("Equal", 0, 2))
sketch5.addConstraint(Sketcher.Constraint("Equal", 1, 3))
sketch5.addConstraint(Sketcher.Constraint("Equal", 2, 4))
sketch5.addConstraint(Sketcher.Constraint("Equal", 3, 5))
sketch5.addConstraint(Sketcher.Constraint("Vertical", 1, 3, 2, 3))
sketch5.addConstraint(Sketcher.Constraint("Diameter", 0, Q("6 mm")))
sketch5.addConstraint(Sketcher.Constraint("Diameter", 1, Q("2.8 mm")))
sketch5.addConstraint(Sketcher.Constraint("DistanceX", 0, 3, -1, 1, Q("11.1 mm")))
sketch5.addConstraint(Sketcher.Constraint("DistanceX", -1, 1, 4, 3, Q("25.1 mm")))
sketch5.addConstraint(Sketcher.Constraint("DistanceY", 2, 3, 0, 3, Q("50.4 mm")))
sketch5.addConstraint(Sketcher.Constraint("DistanceY", 4, 3, 0, 3, Q("25.2 mm")))
sketch5.addConstraint(Sketcher.Constraint("DistanceY", -1, 1, 0, 3, Q("29.6605 mm")))
pad3 = body.newObject("PartDesign::Pad", "Pad002")
pad3.Profile = sketch5
pad3.Length = 5
pad3.Reversed = True
doc.recompute()

chamfer = body.newObject("PartDesign::Chamfer", "Chamfer")
chamfer.Base = (pad3, edges_at(pad3, [(-8.1, 29.66, 1), (-8.1, -20.74, 1), (28.1, 4.46, 1)]))
chamfer.Size = 4

sketch6 = body.newObject("Sketcher::SketchObject", "Sketch005")
sketch6.AttachmentSupport = (doc.getObject("XY_Plane"), [""])
sketch6.MapMode = "FlatFace"
sketch6.AttachmentOffset = App.Placement(Vector(0, 0, 1), App.Rotation())
sketch6.addGeometry(Part.LineSegment(Vector(39.7, -8.0395, 0), Vector(39.7, 16.9605, 0)), False)
sketch6.addGeometry(Part.LineSegment(Vector(39.7, 16.9605, 0), Vector(45.7, 16.9605, 0)), False)
sketch6.addGeometry(Part.LineSegment(Vector(45.7, 16.9605, 0), Vector(45.7, -8.0395, 0)), False)
sketch6.addGeometry(Part.LineSegment(Vector(45.7, -8.0395, 0), Vector(39.7, -8.0395, 0)), False)
sketch6.addConstraint(Sketcher.Constraint("Coincident", 0, 2, 1, 1))
sketch6.addConstraint(Sketcher.Constraint("Coincident", 1, 2, 2, 1))
sketch6.addConstraint(Sketcher.Constraint("Coincident", 2, 2, 3, 1))
sketch6.addConstraint(Sketcher.Constraint("Coincident", 3, 2, 0, 1))
sketch6.addConstraint(Sketcher.Constraint("Vertical", 0))
sketch6.addConstraint(Sketcher.Constraint("Horizontal", 1))
sketch6.addConstraint(Sketcher.Constraint("Vertical", 2))
sketch6.addConstraint(Sketcher.Constraint("Horizontal", 3))
sketch6.addConstraint(Sketcher.Constraint("DistanceX", 1, 1, 1, 2, Q("6 mm")))
sketch6.addConstraint(Sketcher.Constraint("DistanceY", 0, 1, 0, 2, Q("25 mm")))
sketch6.addConstraint(Sketcher.Constraint("DistanceX", -1, 1, 0, 2, Q("39.7 mm")))
sketch6.addConstraint(Sketcher.Constraint("DistanceY", -1, 1, 0, 2, Q("16.9605 mm")))
pad4 = body.newObject("PartDesign::Pad", "Pad003")
pad4.Profile = sketch6
pad4.Length = 17.9
pad4.Reversed = True
doc.recompute()

chamfer2 = body.newObject("PartDesign::Chamfer", "Chamfer001")
chamfer2.Base = (pad4, edges_at(pad4, [(39.7, 4.46, 1)]))
chamfer2.Size = 4

sketch7 = body.newObject("Sketcher::SketchObject", "Sketch006")
sketch7.AttachmentSupport = (doc.getObject("XY_Plane"), [""])
sketch7.MapMode = "FlatFace"
sketch7.AttachmentOffset = App.Placement(Vector(0, 0, 5), App.Rotation())
sketch7.addGeometry(Part.LineSegment(Vector(0.4, 88.3605, 0), Vector(-18.3142, 37.3747, 0)), False)
sketch7.addGeometry(Part.ArcOfCircle(Part.Circle(Vector(-16.9, 35.9605, 0), Vector(0, 0, 1), 2), math.radians(90), math.radians(135)), False)
sketch7.addGeometry(Part.LineSegment(Vector(-16.9, 37.9605, 0), Vector(0, 37.9605, 0)), False)
sketch7.addGeometry(Part.ArcOfCircle(Part.Circle(Vector(0, 35.9605, 0), Vector(0, 0, 1), 2), math.radians(0), math.radians(90)), False)
sketch7.addGeometry(Part.LineSegment(Vector(2, 35.9605, 0), Vector(2, 25.9605, 0)), False)
sketch7.addGeometry(Part.LineSegment(Vector(2, 25.9605, 0), Vector(8.7, 25.9605, 0)), False)
sketch7.addGeometry(Part.ArcOfCircle(Part.Circle(Vector(8.7, 23.9605, 0), Vector(0, 0, 1), 2), math.radians(0), math.radians(90)), False)
sketch7.addGeometry(Part.LineSegment(Vector(10.7, 23.9605, 0), Vector(10.7, 16.9605, 0)), False)
sketch7.addGeometry(Part.LineSegment(Vector(10.7, 16.9605, 0), Vector(45.7, 16.9605, 0)), False)
sketch7.addGeometry(Part.LineSegment(Vector(45.7, 16.9605, 0), Vector(18.6828, 88.3605, 0)), False)
sketch7.addGeometry(Part.LineSegment(Vector(18.6828, 88.3605, 0), Vector(0.4, 88.3605, 0)), False)
sketch7.addConstraint(Sketcher.Constraint("Coincident", 0, 2, 1, 2))
sketch7.addConstraint(Sketcher.Constraint("Tangent", 1, 1, 2, 1))
sketch7.addConstraint(Sketcher.Constraint("Tangent", 2, 2, 3, 2))
sketch7.addConstraint(Sketcher.Constraint("Tangent", 3, 1, 4, 1))
sketch7.addConstraint(Sketcher.Constraint("Coincident", 4, 2, 5, 1))
sketch7.addConstraint(Sketcher.Constraint("Tangent", 5, 2, 6, 2))
sketch7.addConstraint(Sketcher.Constraint("Tangent", 6, 1, 7, 1))
sketch7.addConstraint(Sketcher.Constraint("Coincident", 7, 2, 8, 1))
sketch7.addConstraint(Sketcher.Constraint("Coincident", 8, 2, 9, 1))
sketch7.addConstraint(Sketcher.Constraint("Coincident", 9, 2, 10, 1))
sketch7.addConstraint(Sketcher.Constraint("Coincident", 10, 2, 0, 1))
sketch7.addConstraint(Sketcher.Constraint("Horizontal", 2))
sketch7.addConstraint(Sketcher.Constraint("Vertical", 4))
sketch7.addConstraint(Sketcher.Constraint("Horizontal", 5))
sketch7.addConstraint(Sketcher.Constraint("Vertical", 7))
sketch7.addConstraint(Sketcher.Constraint("Horizontal", 8))
sketch7.addConstraint(Sketcher.Constraint("Horizontal", 10))
sketch7.addConstraint(Sketcher.Constraint("Equal", 1, 3))
sketch7.addConstraint(Sketcher.Constraint("Equal", 3, 6))
sketch7.addConstraint(Sketcher.Constraint("PointOnObject", 3, 3, -2))
sketch7.addConstraint(Sketcher.Constraint("Radius", 1, Q("2 mm")))
sketch7.addConstraint(Sketcher.Constraint("DistanceX", 8, 1, 8, 2, Q("35 mm")))
sketch7.addConstraint(Sketcher.Constraint("DistanceY", 4, 2, 4, 1, Q("10 mm")))
sketch7.addConstraint(Sketcher.Constraint("DistanceY", 7, 2, 7, 1, Q("7 mm")))
sketch7.addConstraint(Sketcher.Constraint("DistanceX", 2, 1, 2, 2, Q("16.9 mm")))
sketch7.addConstraint(Sketcher.Constraint("DistanceX", 5, 1, 5, 2, Q("6.7 mm")))
sketch7.addConstraint(Sketcher.Constraint("DistanceX", -1, 1, 10, 2, Q("0.4 mm")))
sketch7.addConstraint(Sketcher.Constraint("DistanceY", 2, 2, 9, 2, Q("50.4 mm")))
sketch7.addConstraint(Sketcher.Constraint("DistanceX", 10, 2, 10, 1, Q("18.2828 mm")))
sketch7.addConstraint(Sketcher.Constraint("DistanceX", 0, 2, 9, 2, Q("36.997 mm")))
sketch7.addConstraint(Sketcher.Constraint("DistanceY", -1, 1, 1, 3, Q("35.9605 mm")))
pad5 = body.newObject("PartDesign::Pad", "Pad004")
pad5.Profile = sketch7
pad5.Length = 4
pad5.Reversed = True

sketch8 = body.newObject("Sketcher::SketchObject", "Sketch007")
sketch8.AttachmentSupport = (doc.getObject("XY_Plane"), [""])
sketch8.MapMode = "FlatFace"
sketch8.AttachmentOffset = App.Placement(Vector(0, 0, 1), App.Rotation())
sketch8.addGeometry(Part.Circle(Vector(18.9176, 67.9604, 0), Vector(0, 0, 1), 1.4), False)
sketch8.addGeometry(Part.Circle(Vector(23.0799, 56.9604, 0), Vector(0, 0, 1), 1.4), False)
sketch8.addGeometry(Part.Circle(Vector(27.2423, 45.9604, 0), Vector(0, 0, 1), 1.4), False)
sketch8.addGeometry(Part.Circle(Vector(31.4046, 34.9604, 0), Vector(0, 0, 1), 1.4), False)
sketch8.addGeometry(Part.Circle(Vector(35.5669, 23.9604, 0), Vector(0, 0, 1), 1.4), False)
sketch8.addGeometry(Part.Circle(Vector(-7.7062, 45.9604, 0), Vector(0, 0, 1), 1.4), False)
sketch8.addGeometry(Part.Circle(Vector(-3.6687, 56.9604, 0), Vector(0, 0, 1), 1.4), False)
sketch8.addGeometry(Part.Circle(Vector(0.3689, 67.9604, 0), Vector(0, 0, 1), 1.4), False)
sketch8.addGeometry(Part.Circle(Vector(18.9176, 34.9604, 0), Vector(0, 0, 1), 1.4), False)
sketch8.addConstraint(Sketcher.Constraint("Equal", 0, 1))
sketch8.addConstraint(Sketcher.Constraint("Equal", 1, 2))
sketch8.addConstraint(Sketcher.Constraint("Equal", 2, 3))
sketch8.addConstraint(Sketcher.Constraint("Equal", 3, 4))
sketch8.addConstraint(Sketcher.Constraint("Equal", 4, 5))
sketch8.addConstraint(Sketcher.Constraint("Equal", 5, 6))
sketch8.addConstraint(Sketcher.Constraint("Equal", 6, 7))
sketch8.addConstraint(Sketcher.Constraint("Equal", 7, 8))
sketch8.addConstraint(Sketcher.Constraint("Horizontal", 2, 3, 5, 3))
sketch8.addConstraint(Sketcher.Constraint("Horizontal", 1, 3, 6, 3))
sketch8.addConstraint(Sketcher.Constraint("Horizontal", 0, 3, 7, 3))
sketch8.addConstraint(Sketcher.Constraint("Horizontal", 3, 3, 8, 3))
sketch8.addConstraint(Sketcher.Constraint("Vertical", 0, 3, 8, 3))
sketch8.addConstraint(Sketcher.Constraint("Diameter", 0, Q("2.8 mm")))
sketch8.addConstraint(Sketcher.Constraint("DistanceY", 1, 3, 0, 3, Q("11 mm")))
sketch8.addConstraint(Sketcher.Constraint("DistanceY", 2, 3, 1, 3, Q("11 mm")))
sketch8.addConstraint(Sketcher.Constraint("DistanceY", 3, 3, 2, 3, Q("11 mm")))
sketch8.addConstraint(Sketcher.Constraint("DistanceY", 4, 3, 3, 3, Q("11 mm")))
sketch8.addConstraint(Sketcher.Constraint("DistanceX", -1, 1, 1, 3, Q("23.08 mm")))
sketch8.addConstraint(Sketcher.Constraint("DistanceX", -1, 1, 4, 3, Q("35.567 mm")))
sketch8.addConstraint(Sketcher.Constraint("DistanceX", -1, 1, 7, 3, Q("0.369 mm")))
sketch8.addConstraint(Sketcher.Constraint("DistanceX", 0, 3, 3, 3, Q("12.487 mm")))
sketch8.addConstraint(Sketcher.Constraint("DistanceX", 5, 3, 1, 3, Q("30.786 mm")))
sketch8.addConstraint(Sketcher.Constraint("DistanceX", 6, 3, 2, 3, Q("30.911 mm")))
sketch8.addConstraint(Sketcher.Constraint("DistanceX", -1, 1, 0, 3, Q("18.9176 mm")))
sketch8.addConstraint(Sketcher.Constraint("DistanceY", -1, 1, 0, 3, Q("67.9604 mm")))
sketch8.addConstraint(Sketcher.Constraint("DistanceX", -1, 1, 2, 3, Q("27.2423 mm")))
doc.recompute()
hole = body.newObject("PartDesign::Hole", "Hole")
hole.Profile = sketch8
hole.ThreadType = "None"
hole.Diameter = 2.8
hole.DepthType = "ThroughAll"
hole.Reversed = True

doc.recompute()
